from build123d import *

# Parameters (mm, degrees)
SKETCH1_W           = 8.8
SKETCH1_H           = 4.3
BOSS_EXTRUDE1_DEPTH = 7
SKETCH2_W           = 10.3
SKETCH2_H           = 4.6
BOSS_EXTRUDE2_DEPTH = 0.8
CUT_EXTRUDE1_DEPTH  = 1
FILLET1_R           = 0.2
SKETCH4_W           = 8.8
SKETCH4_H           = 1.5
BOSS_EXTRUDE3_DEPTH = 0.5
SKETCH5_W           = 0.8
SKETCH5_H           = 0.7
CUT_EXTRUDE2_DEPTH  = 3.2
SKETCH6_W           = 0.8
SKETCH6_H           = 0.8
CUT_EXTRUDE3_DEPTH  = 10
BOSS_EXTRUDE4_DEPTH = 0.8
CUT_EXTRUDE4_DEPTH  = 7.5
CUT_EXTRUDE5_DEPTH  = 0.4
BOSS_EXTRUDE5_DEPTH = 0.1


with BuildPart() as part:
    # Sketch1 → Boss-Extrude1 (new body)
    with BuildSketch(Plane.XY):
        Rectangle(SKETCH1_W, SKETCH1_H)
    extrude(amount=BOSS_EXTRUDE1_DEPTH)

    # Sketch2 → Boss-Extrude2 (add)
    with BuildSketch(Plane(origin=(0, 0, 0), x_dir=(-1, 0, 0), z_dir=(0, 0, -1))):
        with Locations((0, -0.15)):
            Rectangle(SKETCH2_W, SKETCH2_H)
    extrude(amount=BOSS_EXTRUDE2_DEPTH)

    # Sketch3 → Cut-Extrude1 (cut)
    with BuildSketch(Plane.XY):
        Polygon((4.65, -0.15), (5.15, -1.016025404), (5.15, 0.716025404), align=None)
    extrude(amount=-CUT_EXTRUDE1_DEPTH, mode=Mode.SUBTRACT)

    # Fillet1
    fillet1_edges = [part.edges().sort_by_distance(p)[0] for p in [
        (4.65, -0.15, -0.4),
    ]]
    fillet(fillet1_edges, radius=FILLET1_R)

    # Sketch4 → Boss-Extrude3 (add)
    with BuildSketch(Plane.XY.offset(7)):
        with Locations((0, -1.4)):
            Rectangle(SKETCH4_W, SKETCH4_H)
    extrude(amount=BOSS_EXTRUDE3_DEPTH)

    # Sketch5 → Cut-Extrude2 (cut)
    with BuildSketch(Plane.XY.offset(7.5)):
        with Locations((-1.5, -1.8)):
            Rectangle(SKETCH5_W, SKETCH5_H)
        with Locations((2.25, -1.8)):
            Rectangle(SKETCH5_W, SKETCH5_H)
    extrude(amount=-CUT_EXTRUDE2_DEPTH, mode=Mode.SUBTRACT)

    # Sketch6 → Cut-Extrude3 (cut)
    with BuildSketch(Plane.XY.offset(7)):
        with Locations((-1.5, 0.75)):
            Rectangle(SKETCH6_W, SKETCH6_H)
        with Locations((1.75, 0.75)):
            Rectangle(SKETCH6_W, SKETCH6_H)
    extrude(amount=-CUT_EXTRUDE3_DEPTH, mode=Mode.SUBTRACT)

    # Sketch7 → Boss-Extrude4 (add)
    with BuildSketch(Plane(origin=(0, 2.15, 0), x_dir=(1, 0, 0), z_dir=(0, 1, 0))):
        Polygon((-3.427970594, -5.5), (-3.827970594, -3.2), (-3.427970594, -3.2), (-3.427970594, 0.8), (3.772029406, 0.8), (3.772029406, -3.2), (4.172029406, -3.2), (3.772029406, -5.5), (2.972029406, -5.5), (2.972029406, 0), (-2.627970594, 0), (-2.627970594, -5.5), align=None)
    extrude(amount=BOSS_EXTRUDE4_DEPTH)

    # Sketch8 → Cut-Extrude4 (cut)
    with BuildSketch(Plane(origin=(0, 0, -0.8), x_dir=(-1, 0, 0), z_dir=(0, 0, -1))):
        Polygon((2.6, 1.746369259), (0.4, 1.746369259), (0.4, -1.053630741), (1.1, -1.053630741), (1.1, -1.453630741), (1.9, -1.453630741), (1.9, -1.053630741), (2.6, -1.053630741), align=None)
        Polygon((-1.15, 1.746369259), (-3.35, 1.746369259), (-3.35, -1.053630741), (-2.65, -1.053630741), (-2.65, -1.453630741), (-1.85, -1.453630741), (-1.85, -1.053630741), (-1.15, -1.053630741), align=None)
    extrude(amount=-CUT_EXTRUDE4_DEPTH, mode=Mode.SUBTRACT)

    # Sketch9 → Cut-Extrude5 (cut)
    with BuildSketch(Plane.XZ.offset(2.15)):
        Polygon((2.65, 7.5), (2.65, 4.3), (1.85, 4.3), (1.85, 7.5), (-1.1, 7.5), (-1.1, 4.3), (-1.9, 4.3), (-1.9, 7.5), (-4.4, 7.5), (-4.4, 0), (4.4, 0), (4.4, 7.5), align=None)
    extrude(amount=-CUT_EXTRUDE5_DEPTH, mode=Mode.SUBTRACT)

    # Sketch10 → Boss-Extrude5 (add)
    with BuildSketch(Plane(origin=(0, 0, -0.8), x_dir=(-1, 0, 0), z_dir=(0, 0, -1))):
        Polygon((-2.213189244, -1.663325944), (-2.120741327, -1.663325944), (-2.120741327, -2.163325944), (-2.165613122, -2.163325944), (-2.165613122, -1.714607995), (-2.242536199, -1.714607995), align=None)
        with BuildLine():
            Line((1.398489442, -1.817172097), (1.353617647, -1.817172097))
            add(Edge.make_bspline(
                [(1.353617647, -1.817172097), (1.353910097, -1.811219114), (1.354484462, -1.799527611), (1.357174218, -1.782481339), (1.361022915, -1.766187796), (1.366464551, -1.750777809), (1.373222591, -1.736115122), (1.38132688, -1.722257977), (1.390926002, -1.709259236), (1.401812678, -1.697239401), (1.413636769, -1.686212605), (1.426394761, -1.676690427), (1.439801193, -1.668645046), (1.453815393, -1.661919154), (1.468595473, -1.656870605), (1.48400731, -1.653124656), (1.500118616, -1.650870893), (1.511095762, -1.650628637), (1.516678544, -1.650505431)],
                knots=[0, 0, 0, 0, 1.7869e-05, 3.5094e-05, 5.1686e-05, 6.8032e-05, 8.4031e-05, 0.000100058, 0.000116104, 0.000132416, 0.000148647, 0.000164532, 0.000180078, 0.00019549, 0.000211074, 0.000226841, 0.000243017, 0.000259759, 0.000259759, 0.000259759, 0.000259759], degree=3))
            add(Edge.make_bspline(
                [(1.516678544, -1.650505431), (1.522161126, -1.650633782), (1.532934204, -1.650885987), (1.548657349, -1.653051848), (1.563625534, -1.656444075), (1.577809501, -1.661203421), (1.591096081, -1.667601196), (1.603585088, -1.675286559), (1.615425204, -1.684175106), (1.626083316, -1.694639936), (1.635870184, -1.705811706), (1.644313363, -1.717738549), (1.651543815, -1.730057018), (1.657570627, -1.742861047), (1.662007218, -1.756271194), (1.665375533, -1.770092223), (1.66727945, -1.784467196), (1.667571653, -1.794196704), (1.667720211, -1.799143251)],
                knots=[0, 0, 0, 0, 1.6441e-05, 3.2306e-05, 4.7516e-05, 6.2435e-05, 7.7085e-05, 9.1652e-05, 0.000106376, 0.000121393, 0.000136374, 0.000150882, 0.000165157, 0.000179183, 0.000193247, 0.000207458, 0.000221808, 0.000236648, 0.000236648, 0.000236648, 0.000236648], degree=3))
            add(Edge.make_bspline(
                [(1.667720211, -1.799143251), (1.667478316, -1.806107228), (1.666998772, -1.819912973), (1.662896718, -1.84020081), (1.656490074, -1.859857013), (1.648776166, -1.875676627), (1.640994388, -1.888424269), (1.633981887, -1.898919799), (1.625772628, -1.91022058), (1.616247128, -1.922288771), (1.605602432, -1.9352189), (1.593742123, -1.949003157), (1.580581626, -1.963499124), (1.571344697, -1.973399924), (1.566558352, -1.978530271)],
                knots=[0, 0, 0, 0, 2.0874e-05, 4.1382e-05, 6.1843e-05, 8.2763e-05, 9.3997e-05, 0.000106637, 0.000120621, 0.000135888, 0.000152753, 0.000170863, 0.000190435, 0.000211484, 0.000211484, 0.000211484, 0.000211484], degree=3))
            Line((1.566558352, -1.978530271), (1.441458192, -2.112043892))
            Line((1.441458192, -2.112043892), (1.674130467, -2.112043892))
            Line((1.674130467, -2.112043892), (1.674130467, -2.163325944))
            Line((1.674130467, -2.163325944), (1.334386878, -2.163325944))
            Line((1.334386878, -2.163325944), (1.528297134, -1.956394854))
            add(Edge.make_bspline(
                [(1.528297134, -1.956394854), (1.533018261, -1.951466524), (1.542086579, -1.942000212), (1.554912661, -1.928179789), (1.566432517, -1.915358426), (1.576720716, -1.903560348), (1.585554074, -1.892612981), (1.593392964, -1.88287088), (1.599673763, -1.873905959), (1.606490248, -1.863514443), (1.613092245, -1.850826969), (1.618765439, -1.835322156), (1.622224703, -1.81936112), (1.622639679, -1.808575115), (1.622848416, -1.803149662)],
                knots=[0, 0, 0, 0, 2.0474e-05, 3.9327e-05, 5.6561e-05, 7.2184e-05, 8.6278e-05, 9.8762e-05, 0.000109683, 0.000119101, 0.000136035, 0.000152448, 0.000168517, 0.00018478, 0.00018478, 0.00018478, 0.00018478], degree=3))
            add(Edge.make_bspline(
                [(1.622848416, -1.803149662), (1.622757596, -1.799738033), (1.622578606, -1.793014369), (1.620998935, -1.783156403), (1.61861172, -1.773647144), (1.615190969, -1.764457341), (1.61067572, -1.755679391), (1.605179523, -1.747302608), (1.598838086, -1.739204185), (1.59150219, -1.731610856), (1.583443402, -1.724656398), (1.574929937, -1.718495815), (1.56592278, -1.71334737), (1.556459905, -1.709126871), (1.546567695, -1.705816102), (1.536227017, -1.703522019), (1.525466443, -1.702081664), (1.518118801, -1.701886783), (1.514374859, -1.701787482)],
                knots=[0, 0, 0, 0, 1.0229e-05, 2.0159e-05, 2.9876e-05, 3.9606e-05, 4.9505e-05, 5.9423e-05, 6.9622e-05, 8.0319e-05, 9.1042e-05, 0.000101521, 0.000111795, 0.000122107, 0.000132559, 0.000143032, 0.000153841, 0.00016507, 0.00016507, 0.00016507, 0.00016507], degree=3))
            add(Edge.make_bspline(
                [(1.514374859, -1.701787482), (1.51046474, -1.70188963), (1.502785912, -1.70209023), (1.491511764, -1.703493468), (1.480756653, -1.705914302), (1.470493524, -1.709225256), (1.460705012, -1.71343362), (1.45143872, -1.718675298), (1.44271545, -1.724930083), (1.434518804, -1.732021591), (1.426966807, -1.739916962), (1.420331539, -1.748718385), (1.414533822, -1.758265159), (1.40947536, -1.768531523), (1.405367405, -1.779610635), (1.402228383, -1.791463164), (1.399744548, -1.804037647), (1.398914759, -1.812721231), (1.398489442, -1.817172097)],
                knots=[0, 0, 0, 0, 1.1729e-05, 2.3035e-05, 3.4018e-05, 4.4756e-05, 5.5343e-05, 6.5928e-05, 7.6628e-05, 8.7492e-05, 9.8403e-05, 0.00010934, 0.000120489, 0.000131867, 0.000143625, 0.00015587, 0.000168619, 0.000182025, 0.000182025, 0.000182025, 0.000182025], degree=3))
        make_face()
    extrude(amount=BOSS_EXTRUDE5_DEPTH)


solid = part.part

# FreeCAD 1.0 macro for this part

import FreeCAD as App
import Part
import Sketcher

V = App.Vector
Q = App.Units.Quantity


def edges_at(feature, points):
    """Names of the edges that pass closest to the given points."""
    edges = feature.Shape.Edges
    near = lambda p: min(range(len(edges)), key=lambda i: edges[i].distToShape(Part.Vertex(*p))[0])
    return sorted({f"Edge{near(p) + 1}" for p in points})


def add_polygon(sketch, points):
    """Adds a closed chain of lines whose ends are joined by coincident constraints."""
    first, n = sketch.GeometryCount, len(points)
    for a, b in zip(points, points[1:] + points[:1]):
        sketch.addGeometry(Part.LineSegment(App.Vector(*a, 0), App.Vector(*b, 0)), False)
    for i in range(n):
        sketch.addConstraint(Sketcher.Constraint("Coincident", first + i, 2, first + (i + 1) % n, 1))

doc = App.newDocument("Part")
body = doc.addObject("PartDesign::Body", "Body")

sketch1 = body.newObject("Sketcher::SketchObject", "Sketch")
sketch1.AttachmentSupport = (doc.getObject("XY_Plane"), [""])
sketch1.MapMode = "FlatFace"
add_polygon(sketch1, [(-4.4, 2.1), (-4.4, -2.1), (4.4, -2.1), (4.4, 2.1)])
sketch1.addConstraint(Sketcher.Constraint("Vertical", 0))
sketch1.addConstraint(Sketcher.Constraint("Horizontal", 1))
sketch1.addConstraint(Sketcher.Constraint("Vertical", 2))
sketch1.addConstraint(Sketcher.Constraint("Horizontal", 3))
sketch1.addConstraint(Sketcher.Constraint("Symmetric", 0, 2, 2, 2, -1, 1))
sketch1.addConstraint(Sketcher.Constraint("DistanceX", 1, 1, 1, 2, 8.8))
sketch1.addConstraint(Sketcher.Constraint("DistanceY", 0, 2, 0, 1, 4.3))
pad1 = body.newObject("PartDesign::Pad", "Pad")
pad1.Profile = sketch1
pad1.Length = 7

sketch2 = body.newObject("Sketcher::SketchObject", "Sketch001")
sketch2.AttachmentSupport = (doc.getObject("XY_Plane"), [""])
sketch2.MapMode = "FlatFace"
add_polygon(sketch2, [(5.2, 2.1), (5.2, -2.5), (-5.2, -2.5), (-5.2, 2.1)])
sketch2.addConstraint(Sketcher.Constraint("Vertical", 0))
sketch2.addConstraint(Sketcher.Constraint("Horizontal", 1))
sketch2.addConstraint(Sketcher.Constraint("Vertical", 2))
sketch2.addConstraint(Sketcher.Constraint("Horizontal", 3))
sketch2.addConstraint(Sketcher.Constraint("DistanceX", 1, 2, 1, 1, 10.3))
sketch2.addConstraint(Sketcher.Constraint("DistanceY", 0, 2, 0, 1, 4.6))
sketch2.addConstraint(Sketcher.Constraint("DistanceX", -1, 1, 0, 2, 5.15))
sketch2.addConstraint(Sketcher.Constraint("DistanceY", 0, 2, -1, 1, 2.45))
pad2 = body.newObject("PartDesign::Pad", "Pad001")
pad2.Profile = sketch2
pad2.Length = 0.8
pad2.Reversed = True

sketch3 = body.newObject("Sketcher::SketchObject", "Sketch002")
sketch3.AttachmentSupport = (doc.getObject("XY_Plane"), [""])
sketch3.MapMode = "FlatFace"
add_polygon(sketch3, [(4.7, -0.1), (5.2, -1), (5.2, 0.7)])
sketch3.addConstraint(Sketcher.Constraint("Vertical", 1))
sketch3.addConstraint(Sketcher.Constraint("Equal", 0, 2))
sketch3.addConstraint(Sketcher.Constraint("Angle", 0, Q("-60 deg")))
sketch3.addConstraint(Sketcher.Constraint("Distance", 0, 1.0))
sketch3.addConstraint(Sketcher.Constraint("DistanceX", -1, 1, 0, 2, 5.15))
sketch3.addConstraint(Sketcher.Constraint("DistanceY", 2, 2, -1, 1, 0.15))
pocket1 = body.newObject("PartDesign::Pocket", "Pocket")
pocket1.Profile = sketch3
pocket1.Length = 1
doc.recompute()

fillet = body.newObject("PartDesign::Fillet", "Fillet")
fillet.Base = (pocket1, edges_at(pocket1, [(4.65, -0.15, -0.4)]))
fillet.Radius = 0.2

sketch4 = body.newObject("Sketcher::SketchObject", "Sketch003")
sketch4.AttachmentSupport = (doc.getObject("XY_Plane"), [""])
sketch4.MapMode = "FlatFace"
sketch4.AttachmentOffset = App.Placement(V(0, 0, 7), App.Rotation())
add_polygon(sketch4, [(-4.4, -0.7), (-4.4, -2.1), (4.4, -2.1), (4.4, -0.7)])
sketch4.addConstraint(Sketcher.Constraint("Vertical", 0))
sketch4.addConstraint(Sketcher.Constraint("Horizontal", 1))
sketch4.addConstraint(Sketcher.Constraint("Vertical", 2))
sketch4.addConstraint(Sketcher.Constraint("Horizontal", 3))
sketch4.addConstraint(Sketcher.Constraint("DistanceX", 1, 1, 1, 2, 8.8))
sketch4.addConstraint(Sketcher.Constraint("DistanceY", 0, 2, 0, 1, 1.5))
sketch4.addConstraint(Sketcher.Constraint("DistanceX", 0, 2, -1, 1, 4.4))
sketch4.addConstraint(Sketcher.Constraint("DistanceY", 0, 2, -1, 1, 2.15))
pad3 = body.newObject("PartDesign::Pad", "Pad002")
pad3.Profile = sketch4
pad3.Length = 0.5

sketch5 = body.newObject("Sketcher::SketchObject", "Sketch004")
sketch5.AttachmentSupport = (doc.getObject("XY_Plane"), [""])
sketch5.MapMode = "FlatFace"
sketch5.AttachmentOffset = App.Placement(V(0, 0, 7.5), App.Rotation())
add_polygon(sketch5, [(-1.9, -1.4), (-1.9, -2.1), (-1.1, -2.1), (-1.1, -1.4)])
add_polygon(sketch5, [(1.9, -1.4), (1.9, -2.1), (2.6, -2.1), (2.6, -1.4)])
sketch5.addConstraint(Sketcher.Constraint("Vertical", 0))
sketch5.addConstraint(Sketcher.Constraint("Horizontal", 1))
sketch5.addConstraint(Sketcher.Constraint("Vertical", 2))
sketch5.addConstraint(Sketcher.Constraint("Horizontal", 3))
sketch5.addConstraint(Sketcher.Constraint("Vertical", 4))
sketch5.addConstraint(Sketcher.Constraint("Horizontal", 5))
sketch5.addConstraint(Sketcher.Constraint("Vertical", 6))
sketch5.addConstraint(Sketcher.Constraint("Horizontal", 7))
sketch5.addConstraint(Sketcher.Constraint("Horizontal", 1, 2, 4, 2))
sketch5.addConstraint(Sketcher.Constraint("Horizontal", 3, 2, 6, 2))
sketch5.addConstraint(Sketcher.Constraint("Equal", 3, 5))
sketch5.addConstraint(Sketcher.Constraint("DistanceX", 1, 1, 1, 2, 0.8))
sketch5.addConstraint(Sketcher.Constraint("DistanceY", 0, 2, 0, 1, 0.7))
sketch5.addConstraint(Sketcher.Constraint("DistanceX", 0, 2, -1, 1, 1.9))
sketch5.addConstraint(Sketcher.Constraint("DistanceY", 0, 2, -1, 1, 2.15))
sketch5.addConstraint(Sketcher.Constraint("DistanceX", -1, 1, 4, 2, 1.85))
pocket2 = body.newObject("PartDesign::Pocket", "Pocket001")
pocket2.Profile = sketch5
pocket2.Length = 3.2

sketch6 = body.newObject("Sketcher::SketchObject", "Sketch005")
sketch6.AttachmentSupport = (doc.getObject("XY_Plane"), [""])
sketch6.MapMode = "FlatFace"
sketch6.AttachmentOffset = App.Placement(V(0, 0, 7), App.Rotation())
add_polygon(sketch6, [(-1.9, 1.1), (-1.9, 0.3), (-1.1, 0.3), (-1.1, 1.1)])
add_polygon(sketch6, [(1.4, 1.1), (1.4, 0.3), (2.1, 0.3), (2.1, 1.1)])
sketch6.addConstraint(Sketcher.Constraint("Vertical", 0))
sketch6.addConstraint(Sketcher.Constraint("Horizontal", 1))
sketch6.addConstraint(Sketcher.Constraint("Vertical", 2))
sketch6.addConstraint(Sketcher.Constraint("Horizontal", 3))
sketch6.addConstraint(Sketcher.Constraint("Vertical", 4))
sketch6.addConstraint(Sketcher.Constraint("Horizontal", 5))
sketch6.addConstraint(Sketcher.Constraint("Vertical", 6))
sketch6.addConstraint(Sketcher.Constraint("Horizontal", 7))
sketch6.addConstraint(Sketcher.Constraint("Horizontal", 1, 2, 4, 2))
sketch6.addConstraint(Sketcher.Constraint("Horizontal", 3, 2, 6, 2))
sketch6.addConstraint(Sketcher.Constraint("Equal", 3, 5))
sketch6.addConstraint(Sketcher.Constraint("Equal", 7, 0))
sketch6.addConstraint(Sketcher.Constraint("DistanceX", 1, 1, 1, 2, 0.8))
sketch6.addConstraint(Sketcher.Constraint("DistanceX", 0, 2, -1, 1, 1.9))
sketch6.addConstraint(Sketcher.Constraint("DistanceY", -1, 1, 0, 2, 0.35))
sketch6.addConstraint(Sketcher.Constraint("DistanceX", -1, 1, 4, 2, 1.35))
pocket3 = body.newObject("PartDesign::Pocket", "Pocket002")
pocket3.Profile = sketch6
pocket3.Length = 10

sketch7 = body.newObject("Sketcher::SketchObject", "Sketch006")
sketch7.AttachmentSupport = (doc.getObject("XZ_Plane"), [""])
sketch7.MapMode = "FlatFace"
sketch7.AttachmentOffset = App.Placement(V(0, 0, -2.15), App.Rotation())
add_polygon(sketch7, [(-3.83, 3.2), (-3.43, 5.5), (-2.63, 5.5), (-2.63, 0), (2.97, 0), (2.97, 5.5), (3.77, 5.5), (4.17, 3.2), (3.77, 3.2), (3.77, -0.8), (-3.43, -0.8), (-3.43, 3.2)])
sketch7.addConstraint(Sketcher.Constraint("Horizontal", 1))
sketch7.addConstraint(Sketcher.Constraint("Vertical", 2))
sketch7.addConstraint(Sketcher.Constraint("Horizontal", 3))
sketch7.addConstraint(Sketcher.Constraint("Vertical", 4))
sketch7.addConstraint(Sketcher.Constraint("Horizontal", 5))
sketch7.addConstraint(Sketcher.Constraint("Horizontal", 7))
sketch7.addConstraint(Sketcher.Constraint("Vertical", 8))
sketch7.addConstraint(Sketcher.Constraint("Horizontal", 9))
sketch7.addConstraint(Sketcher.Constraint("Vertical", 10))
sketch7.addConstraint(Sketcher.Constraint("Horizontal", 11))
sketch7.addConstraint(Sketcher.Constraint("PointOnObject", 2, 2, -1))
sketch7.addConstraint(Sketcher.Constraint("Horizontal", 1, 2, 4, 2))
sketch7.addConstraint(Sketcher.Constraint("Horizontal", 7, 2, 10, 2))
sketch7.addConstraint(Sketcher.Constraint("Vertical", 5, 2, 7, 2))
sketch7.addConstraint(Sketcher.Constraint("Vertical", 0, 2, 9, 2))
sketch7.addConstraint(Sketcher.Constraint("Equal", 1, 5))
sketch7.addConstraint(Sketcher.Constraint("Equal", 7, 11))
sketch7.addConstraint(Sketcher.Constraint("DistanceY", 8, 2, 8, 1, 4.0))
sketch7.addConstraint(Sketcher.Constraint("DistanceX", 1, 1, 1, 2, 0.8))
sketch7.addConstraint(Sketcher.Constraint("DistanceX", 3, 1, 3, 2, 5.6))
sketch7.addConstraint(Sketcher.Constraint("DistanceX", 7, 2, 7, 1, 0.4))
sketch7.addConstraint(Sketcher.Constraint("DistanceY", 2, 2, 2, 1, 5.5))
sketch7.addConstraint(Sketcher.Constraint("DistanceY", -1, 1, 6, 2, 3.2))
sketch7.addConstraint(Sketcher.Constraint("DistanceX", 0, 2, -1, 1, 3.427971))
pad4 = body.newObject("PartDesign::Pad", "Pad003")
pad4.Profile = sketch7
pad4.Length = 0.8
pad4.Reversed = True

sketch8 = body.newObject("Sketcher::SketchObject", "Sketch007")
sketch8.AttachmentSupport = (doc.getObject("XY_Plane"), [""])
sketch8.MapMode = "FlatFace"
sketch8.AttachmentOffset = App.Placement(V(0, 0, -0.8), App.Rotation())
add_polygon(sketch8, [(-2.6, 1.75), (-0.4, 1.75), (-0.4, -1.05), (-1.1, -1.05), (-1.1, -1.45), (-1.9, -1.45), (-1.9, -1.05), (-2.6, -1.05)])
add_polygon(sketch8, [(1.15, 1.75), (3.35, 1.75), (3.35, -1.05), (2.65, -1.05), (2.65, -1.45), (1.85, -1.45), (1.85, -1.05), (1.15, -1.05)])
sketch8.addConstraint(Sketcher.Constraint("Horizontal", 0))
sketch8.addConstraint(Sketcher.Constraint("Vertical", 1))
sketch8.addConstraint(Sketcher.Constraint("Horizontal", 2))
sketch8.addConstraint(Sketcher.Constraint("Vertical", 3))
sketch8.addConstraint(Sketcher.Constraint("Horizontal", 4))
sketch8.addConstraint(Sketcher.Constraint("Vertical", 5))
sketch8.addConstraint(Sketcher.Constraint("Horizontal", 6))
sketch8.addConstraint(Sketcher.Constraint("Vertical", 7))
sketch8.addConstraint(Sketcher.Constraint("Horizontal", 8))
sketch8.addConstraint(Sketcher.Constraint("Vertical", 9))
sketch8.addConstraint(Sketcher.Constraint("Horizontal", 10))
sketch8.addConstraint(Sketcher.Constraint("Vertical", 11))
sketch8.addConstraint(Sketcher.Constraint("Horizontal", 12))
sketch8.addConstraint(Sketcher.Constraint("Vertical", 13))
sketch8.addConstraint(Sketcher.Constraint("Horizontal", 14))
sketch8.addConstraint(Sketcher.Constraint("Vertical", 15))
sketch8.addConstraint(Sketcher.Constraint("Horizontal", 2, 2, 5, 2))
sketch8.addConstraint(Sketcher.Constraint("Horizontal", 7, 2, 8, 2))
sketch8.addConstraint(Sketcher.Constraint("Horizontal", 6, 2, 9, 2))
sketch8.addConstraint(Sketcher.Constraint("Horizontal", 4, 2, 11, 2))
sketch8.addConstraint(Sketcher.Constraint("Horizontal", 10, 2, 13, 2))
sketch8.addConstraint(Sketcher.Constraint("Equal", 2, 6))
sketch8.addConstraint(Sketcher.Constraint("Equal", 0, 8))
sketch8.addConstraint(Sketcher.Constraint("Equal", 6, 10))
sketch8.addConstraint(Sketcher.Constraint("Equal", 4, 12))
sketch8.addConstraint(Sketcher.Constraint("DistanceX", 0, 1, 0, 2, 2.2))
sketch8.addConstraint(Sketcher.Constraint("DistanceX", 2, 2, 2, 1, 0.7))
sketch8.addConstraint(Sketcher.Constraint("DistanceY", 1, 2, 1, 1, 2.8))
sketch8.addConstraint(Sketcher.Constraint("DistanceY", 3, 2, 3, 1, 0.4))
sketch8.addConstraint(Sketcher.Constraint("DistanceX", 0, 2, -1, 1, 0.4))
sketch8.addConstraint(Sketcher.Constraint("DistanceX", -1, 1, 8, 2, 3.35))
sketch8.addConstraint(Sketcher.Constraint("DistanceY", -1, 1, 0, 2, 1.746369))
pocket4 = body.newObject("PartDesign::Pocket", "Pocket003")
pocket4.Profile = sketch8
pocket4.Length = 7.5
pocket4.Reversed = True

sketch9 = body.newObject("Sketcher::SketchObject", "Sketch008")
sketch9.AttachmentSupport = (doc.getObject("XZ_Plane"), [""])
sketch9.MapMode = "FlatFace"
sketch9.AttachmentOffset = App.Placement(V(0, 0, 2.15), App.Rotation())
add_polygon(sketch9, [(2.6, 7.5), (2.6, 4.3), (1.9, 4.3), (1.9, 7.5), (-1.1, 7.5), (-1.1, 4.3), (-1.9, 4.3), (-1.9, 7.5), (-4.4, 7.5), (-4.4, 0), (4.4, 0), (4.4, 7.5)])
sketch9.addConstraint(Sketcher.Constraint("Vertical", 0))
sketch9.addConstraint(Sketcher.Constraint("Horizontal", 1))
sketch9.addConstraint(Sketcher.Constraint("Vertical", 2))
sketch9.addConstraint(Sketcher.Constraint("Horizontal", 3))
sketch9.addConstraint(Sketcher.Constraint("Vertical", 4))
sketch9.addConstraint(Sketcher.Constraint("Horizontal", 5))
sketch9.addConstraint(Sketcher.Constraint("Vertical", 6))
sketch9.addConstraint(Sketcher.Constraint("Horizontal", 7))
sketch9.addConstraint(Sketcher.Constraint("Vertical", 8))
sketch9.addConstraint(Sketcher.Constraint("Horizontal", 9))
sketch9.addConstraint(Sketcher.Constraint("Vertical", 10))
sketch9.addConstraint(Sketcher.Constraint("Horizontal", 11))
sketch9.addConstraint(Sketcher.Constraint("Symmetric", 8, 2, 9, 2, -1, 1))
sketch9.addConstraint(Sketcher.Constraint("Horizontal", 1, 2, 4, 2))
sketch9.addConstraint(Sketcher.Constraint("Horizontal", 3, 2, 6, 2))
sketch9.addConstraint(Sketcher.Constraint("Horizontal", 7, 2, 10, 2))
sketch9.addConstraint(Sketcher.Constraint("Equal", 1, 5))
sketch9.addConstraint(Sketcher.Constraint("DistanceX", 1, 2, 1, 1, 0.8))
sketch9.addConstraint(Sketcher.Constraint("DistanceX", 7, 2, 7, 1, 2.5))
sketch9.addConstraint(Sketcher.Constraint("DistanceX", 9, 1, 9, 2, 8.8))
sketch9.addConstraint(Sketcher.Constraint("DistanceY", 0, 2, 0, 1, 3.2))
sketch9.addConstraint(Sketcher.Constraint("DistanceY", 8, 2, 8, 1, 7.5))
sketch9.addConstraint(Sketcher.Constraint("DistanceX", 3, 2, 3, 1, 2.95))
pocket5 = body.newObject("PartDesign::Pocket", "Pocket004")
pocket5.Profile = sketch9
pocket5.Length = 0.4

sketch10 = body.newObject("Sketcher::SketchObject", "Sketch009")
sketch10.AttachmentSupport = (doc.getObject("XY_Plane"), [""])
sketch10.MapMode = "FlatFace"
sketch10.AttachmentOffset = App.Placement(V(0, 0, -0.8), App.Rotation())
add_polygon(sketch10, [(2.120741, -1.663326), (2.213189, -1.663326), (2.242536, -1.714608), (2.165613, -1.714608), (2.165613, -2.163326), (2.120741, -2.163326)])
sketch10.addGeometry(Part.LineSegment(V(-1.353618, -1.817172, 0), V(-1.398489, -1.817172, 0)), False)
sketch10.addGeometry(Part.BSplineCurve([V(-1.514375, -1.701787, 0), V(-1.510465, -1.70189, 0), V(-1.502786, -1.70209, 0), V(-1.491512, -1.703493, 0), V(-1.480757, -1.705914, 0), V(-1.470494, -1.709225, 0), V(-1.460705, -1.713434, 0), V(-1.451439, -1.718675, 0), V(-1.442715, -1.72493, 0), V(-1.434519, -1.732022, 0), V(-1.426967, -1.739917, 0), V(-1.420332, -1.748718, 0), V(-1.414534, -1.758265, 0), V(-1.409475, -1.768532, 0), V(-1.405367, -1.779611, 0), V(-1.402228, -1.791463, 0), V(-1.399745, -1.804038, 0), V(-1.398915, -1.812721, 0), V(-1.398489, -1.817172, 0)], [4, 1, 1, 1, 1, 1, 1, 1, 1, 1, 1, 1, 1, 1, 1, 1, 4], [0, 0.000011729, 0.000023035, 0.000034018, 0.000044756, 0.000055343, 0.000065928, 0.000076628, 0.000087492, 0.000098403, 0.00010934, 0.000120489, 0.000131867, 0.000143625, 0.00015587, 0.000168619, 0.000182025], False, 3, [1, 1, 1, 1, 1, 1, 1, 1, 1, 1, 1, 1, 1, 1, 1, 1, 1, 1, 1], False), False)
sketch10.addGeometry(Part.BSplineCurve([V(-1.622848, -1.80315, 0), V(-1.622758, -1.799738, 0), V(-1.622579, -1.793014, 0), V(-1.620999, -1.783156, 0), V(-1.618612, -1.773647, 0), V(-1.615191, -1.764457, 0), V(-1.610676, -1.755679, 0), V(-1.60518, -1.747303, 0), V(-1.598838, -1.739204, 0), V(-1.591502, -1.731611, 0), V(-1.583443, -1.724656, 0), V(-1.57493, -1.718496, 0), V(-1.565923, -1.713347, 0), V(-1.55646, -1.709127, 0), V(-1.546568, -1.705816, 0), V(-1.536227, -1.703522, 0), V(-1.525466, -1.702082, 0), V(-1.518119, -1.701887, 0), V(-1.514375, -1.701787, 0)], [4, 1, 1, 1, 1, 1, 1, 1, 1, 1, 1, 1, 1, 1, 1, 1, 4], [0, 0.000010229, 0.000020159, 0.000029876, 0.000039606, 0.000049505, 0.000059423, 0.000069622, 0.000080319, 0.000091042, 0.000101521, 0.000111795, 0.000122107, 0.000132559, 0.000143032, 0.000153841, 0.00016507], False, 3, [1, 1, 1, 1, 1, 1, 1, 1, 1, 1, 1, 1, 1, 1, 1, 1, 1, 1, 1], False), False)
sketch10.addGeometry(Part.BSplineCurve([V(-1.528297, -1.956395, 0), V(-1.533018, -1.951467, 0), V(-1.542087, -1.942, 0), V(-1.554913, -1.92818, 0), V(-1.566433, -1.915358, 0), V(-1.576721, -1.90356, 0), V(-1.585554, -1.892613, 0), V(-1.593393, -1.882871, 0), V(-1.599674, -1.873906, 0), V(-1.60649, -1.863514, 0), V(-1.613092, -1.850827, 0), V(-1.618765, -1.835322, 0), V(-1.622225, -1.819361, 0), V(-1.62264, -1.808575, 0), V(-1.622848, -1.80315, 0)], [4, 1, 1, 1, 1, 1, 1, 1, 1, 1, 1, 1, 4], [0, 0.000020474, 0.000039327, 0.000056561, 0.000072184, 0.000086278, 0.000098762, 0.000109683, 0.000119101, 0.000136035, 0.000152448, 0.000168517, 0.00018478], False, 3, [1, 1, 1, 1, 1, 1, 1, 1, 1, 1, 1, 1, 1, 1, 1], False), False)
sketch10.addGeometry(Part.LineSegment(V(-1.528297, -1.956395, 0), V(-1.334387, -2.163326, 0)), False)
sketch10.addGeometry(Part.LineSegment(V(-1.334387, -2.163326, 0), V(-1.67413, -2.163326, 0)), False)
sketch10.addGeometry(Part.LineSegment(V(-1.67413, -2.163326, 0), V(-1.67413, -2.112044, 0)), False)
sketch10.addGeometry(Part.LineSegment(V(-1.67413, -2.112044, 0), V(-1.441458, -2.112044, 0)), False)
sketch10.addGeometry(Part.LineSegment(V(-1.441458, -2.112044, 0), V(-1.566558, -1.97853, 0)), False)
sketch10.addGeometry(Part.BSplineCurve([V(-1.66772, -1.799143, 0), V(-1.667478, -1.806107, 0), V(-1.666999, -1.819913, 0), V(-1.662897, -1.840201, 0), V(-1.65649, -1.859857, 0), V(-1.648776, -1.875677, 0), V(-1.640994, -1.888424, 0), V(-1.633982, -1.89892, 0), V(-1.625773, -1.910221, 0), V(-1.616247, -1.922289, 0), V(-1.605602, -1.935219, 0), V(-1.593742, -1.949003, 0), V(-1.580582, -1.963499, 0), V(-1.571345, -1.9734, 0), V(-1.566558, -1.97853, 0)], [4, 1, 1, 1, 1, 1, 1, 1, 1, 1, 1, 1, 4], [0, 0.000020874, 0.000041382, 0.000061843, 0.000082763, 0.000093997, 0.000106637, 0.000120621, 0.000135888, 0.000152753, 0.000170863, 0.000190435, 0.000211484], False, 3, [1, 1, 1, 1, 1, 1, 1, 1, 1, 1, 1, 1, 1, 1, 1], False), False)
sketch10.addGeometry(Part.BSplineCurve([V(-1.516679, -1.650505, 0), V(-1.522161, -1.650634, 0), V(-1.532934, -1.650886, 0), V(-1.548657, -1.653052, 0), V(-1.563626, -1.656444, 0), V(-1.57781, -1.661203, 0), V(-1.591096, -1.667601, 0), V(-1.603585, -1.675287, 0), V(-1.615425, -1.684175, 0), V(-1.626083, -1.69464, 0), V(-1.63587, -1.705812, 0), V(-1.644313, -1.717739, 0), V(-1.651544, -1.730057, 0), V(-1.657571, -1.742861, 0), V(-1.662007, -1.756271, 0), V(-1.665376, -1.770092, 0), V(-1.667279, -1.784467, 0), V(-1.667572, -1.794197, 0), V(-1.66772, -1.799143, 0)], [4, 1, 1, 1, 1, 1, 1, 1, 1, 1, 1, 1, 1, 1, 1, 1, 4], [0, 0.000016441, 0.000032306, 0.000047516, 0.000062435, 0.000077085, 0.000091652, 0.000106376, 0.000121393, 0.000136374, 0.000150882, 0.000165157, 0.000179183, 0.000193247, 0.000207458, 0.000221808, 0.000236648], False, 3, [1, 1, 1, 1, 1, 1, 1, 1, 1, 1, 1, 1, 1, 1, 1, 1, 1, 1, 1], False), False)
sketch10.addGeometry(Part.BSplineCurve([V(-1.353618, -1.817172, 0), V(-1.35391, -1.811219, 0), V(-1.354484, -1.799528, 0), V(-1.357174, -1.782481, 0), V(-1.361023, -1.766188, 0), V(-1.366465, -1.750778, 0), V(-1.373223, -1.736115, 0), V(-1.381327, -1.722258, 0), V(-1.390926, -1.709259, 0), V(-1.401813, -1.697239, 0), V(-1.413637, -1.686213, 0), V(-1.426395, -1.67669, 0), V(-1.439801, -1.668645, 0), V(-1.453815, -1.661919, 0), V(-1.468595, -1.656871, 0), V(-1.484007, -1.653125, 0), V(-1.500119, -1.650871, 0), V(-1.511096, -1.650629, 0), V(-1.516679, -1.650505, 0)], [4, 1, 1, 1, 1, 1, 1, 1, 1, 1, 1, 1, 1, 1, 1, 1, 4], [0, 0.000017869, 0.000035094, 0.000051686, 0.000068032, 0.000084031, 0.000100058, 0.000116104, 0.000132416, 0.000148647, 0.000164532, 0.000180078, 0.00019549, 0.000211074, 0.000226841, 0.000243017, 0.000259759], False, 3, [1, 1, 1, 1, 1, 1, 1, 1, 1, 1, 1, 1, 1, 1, 1, 1, 1, 1, 1], False), False)
sketch10.addConstraint(Sketcher.Constraint("Block", 7))
sketch10.addConstraint(Sketcher.Constraint("Block", 8))
sketch10.addConstraint(Sketcher.Constraint("Block", 9))
sketch10.addConstraint(Sketcher.Constraint("Block", 15))
sketch10.addConstraint(Sketcher.Constraint("Block", 16))
sketch10.addConstraint(Sketcher.Constraint("Block", 17))
sketch10.addConstraint(Sketcher.Constraint("Coincident", 6, 2, 7, 2))
sketch10.addConstraint(Sketcher.Constraint("Coincident", 9, 1, 10, 1))
sketch10.addConstraint(Sketcher.Constraint("Coincident", 10, 2, 11, 1))
sketch10.addConstraint(Sketcher.Constraint("Coincident", 11, 2, 12, 1))
sketch10.addConstraint(Sketcher.Constraint("Coincident", 12, 2, 13, 1))
sketch10.addConstraint(Sketcher.Constraint("Coincident", 13, 2, 14, 1))
sketch10.addConstraint(Sketcher.Constraint("Coincident", 14, 2, 15, 2))
sketch10.addConstraint(Sketcher.Constraint("Coincident", 17, 1, 6, 1))
sketch10.addConstraint(Sketcher.Constraint("Horizontal", 0))
sketch10.addConstraint(Sketcher.Constraint("Horizontal", 2))
sketch10.addConstraint(Sketcher.Constraint("Vertical", 3))
sketch10.addConstraint(Sketcher.Constraint("Horizontal", 4))
sketch10.addConstraint(Sketcher.Constraint("Vertical", 5))
sketch10.addConstraint(Sketcher.Constraint("Horizontal", 11))
sketch10.addConstraint(Sketcher.Constraint("Vertical", 12))
sketch10.addConstraint(Sketcher.Constraint("Horizontal", 13))
sketch10.addConstraint(Sketcher.Constraint("Horizontal", 4, 2, 10, 2))
sketch10.addConstraint(Sketcher.Constraint("Equal", 4, 6))
sketch10.addConstraint(Sketcher.Constraint("DistanceY", 5, 1, 5, 2, 0.5))
sketch10.addConstraint(Sketcher.Constraint("DistanceX", 10, 2, 3, 2, 3.5))
sketch10.addConstraint(Sketcher.Constraint("DistanceX", 13, 2, 4, 2, 3.5622))
sketch10.addConstraint(Sketcher.Constraint("DistanceX", 14, 2, 13, 2, 0.1251))
sketch10.addConstraint(Sketcher.Constraint("DistanceX", 0, 1, 0, 2, 0.092448))
sketch10.addConstraint(Sketcher.Constraint("DistanceX", 2, 2, 2, 1, 0.076923))
sketch10.addConstraint(Sketcher.Constraint("DistanceX", 11, 2, 11, 1, 0.339744))
sketch10.addConstraint(Sketcher.Constraint("DistanceY", 3, 2, 3, 1, 0.448718))
sketch10.addConstraint(Sketcher.Constraint("DistanceY", 12, 1, 12, 2, 0.051282))
sketch10.addConstraint(Sketcher.Constraint("DistanceY", 12, 2, 6, 2, 0.294872))
pad5 = body.newObject("PartDesign::Pad", "Pad004")
pad5.Profile = sketch10
pad5.Length = 0.1
pad5.Reversed = True

doc.recompute()
